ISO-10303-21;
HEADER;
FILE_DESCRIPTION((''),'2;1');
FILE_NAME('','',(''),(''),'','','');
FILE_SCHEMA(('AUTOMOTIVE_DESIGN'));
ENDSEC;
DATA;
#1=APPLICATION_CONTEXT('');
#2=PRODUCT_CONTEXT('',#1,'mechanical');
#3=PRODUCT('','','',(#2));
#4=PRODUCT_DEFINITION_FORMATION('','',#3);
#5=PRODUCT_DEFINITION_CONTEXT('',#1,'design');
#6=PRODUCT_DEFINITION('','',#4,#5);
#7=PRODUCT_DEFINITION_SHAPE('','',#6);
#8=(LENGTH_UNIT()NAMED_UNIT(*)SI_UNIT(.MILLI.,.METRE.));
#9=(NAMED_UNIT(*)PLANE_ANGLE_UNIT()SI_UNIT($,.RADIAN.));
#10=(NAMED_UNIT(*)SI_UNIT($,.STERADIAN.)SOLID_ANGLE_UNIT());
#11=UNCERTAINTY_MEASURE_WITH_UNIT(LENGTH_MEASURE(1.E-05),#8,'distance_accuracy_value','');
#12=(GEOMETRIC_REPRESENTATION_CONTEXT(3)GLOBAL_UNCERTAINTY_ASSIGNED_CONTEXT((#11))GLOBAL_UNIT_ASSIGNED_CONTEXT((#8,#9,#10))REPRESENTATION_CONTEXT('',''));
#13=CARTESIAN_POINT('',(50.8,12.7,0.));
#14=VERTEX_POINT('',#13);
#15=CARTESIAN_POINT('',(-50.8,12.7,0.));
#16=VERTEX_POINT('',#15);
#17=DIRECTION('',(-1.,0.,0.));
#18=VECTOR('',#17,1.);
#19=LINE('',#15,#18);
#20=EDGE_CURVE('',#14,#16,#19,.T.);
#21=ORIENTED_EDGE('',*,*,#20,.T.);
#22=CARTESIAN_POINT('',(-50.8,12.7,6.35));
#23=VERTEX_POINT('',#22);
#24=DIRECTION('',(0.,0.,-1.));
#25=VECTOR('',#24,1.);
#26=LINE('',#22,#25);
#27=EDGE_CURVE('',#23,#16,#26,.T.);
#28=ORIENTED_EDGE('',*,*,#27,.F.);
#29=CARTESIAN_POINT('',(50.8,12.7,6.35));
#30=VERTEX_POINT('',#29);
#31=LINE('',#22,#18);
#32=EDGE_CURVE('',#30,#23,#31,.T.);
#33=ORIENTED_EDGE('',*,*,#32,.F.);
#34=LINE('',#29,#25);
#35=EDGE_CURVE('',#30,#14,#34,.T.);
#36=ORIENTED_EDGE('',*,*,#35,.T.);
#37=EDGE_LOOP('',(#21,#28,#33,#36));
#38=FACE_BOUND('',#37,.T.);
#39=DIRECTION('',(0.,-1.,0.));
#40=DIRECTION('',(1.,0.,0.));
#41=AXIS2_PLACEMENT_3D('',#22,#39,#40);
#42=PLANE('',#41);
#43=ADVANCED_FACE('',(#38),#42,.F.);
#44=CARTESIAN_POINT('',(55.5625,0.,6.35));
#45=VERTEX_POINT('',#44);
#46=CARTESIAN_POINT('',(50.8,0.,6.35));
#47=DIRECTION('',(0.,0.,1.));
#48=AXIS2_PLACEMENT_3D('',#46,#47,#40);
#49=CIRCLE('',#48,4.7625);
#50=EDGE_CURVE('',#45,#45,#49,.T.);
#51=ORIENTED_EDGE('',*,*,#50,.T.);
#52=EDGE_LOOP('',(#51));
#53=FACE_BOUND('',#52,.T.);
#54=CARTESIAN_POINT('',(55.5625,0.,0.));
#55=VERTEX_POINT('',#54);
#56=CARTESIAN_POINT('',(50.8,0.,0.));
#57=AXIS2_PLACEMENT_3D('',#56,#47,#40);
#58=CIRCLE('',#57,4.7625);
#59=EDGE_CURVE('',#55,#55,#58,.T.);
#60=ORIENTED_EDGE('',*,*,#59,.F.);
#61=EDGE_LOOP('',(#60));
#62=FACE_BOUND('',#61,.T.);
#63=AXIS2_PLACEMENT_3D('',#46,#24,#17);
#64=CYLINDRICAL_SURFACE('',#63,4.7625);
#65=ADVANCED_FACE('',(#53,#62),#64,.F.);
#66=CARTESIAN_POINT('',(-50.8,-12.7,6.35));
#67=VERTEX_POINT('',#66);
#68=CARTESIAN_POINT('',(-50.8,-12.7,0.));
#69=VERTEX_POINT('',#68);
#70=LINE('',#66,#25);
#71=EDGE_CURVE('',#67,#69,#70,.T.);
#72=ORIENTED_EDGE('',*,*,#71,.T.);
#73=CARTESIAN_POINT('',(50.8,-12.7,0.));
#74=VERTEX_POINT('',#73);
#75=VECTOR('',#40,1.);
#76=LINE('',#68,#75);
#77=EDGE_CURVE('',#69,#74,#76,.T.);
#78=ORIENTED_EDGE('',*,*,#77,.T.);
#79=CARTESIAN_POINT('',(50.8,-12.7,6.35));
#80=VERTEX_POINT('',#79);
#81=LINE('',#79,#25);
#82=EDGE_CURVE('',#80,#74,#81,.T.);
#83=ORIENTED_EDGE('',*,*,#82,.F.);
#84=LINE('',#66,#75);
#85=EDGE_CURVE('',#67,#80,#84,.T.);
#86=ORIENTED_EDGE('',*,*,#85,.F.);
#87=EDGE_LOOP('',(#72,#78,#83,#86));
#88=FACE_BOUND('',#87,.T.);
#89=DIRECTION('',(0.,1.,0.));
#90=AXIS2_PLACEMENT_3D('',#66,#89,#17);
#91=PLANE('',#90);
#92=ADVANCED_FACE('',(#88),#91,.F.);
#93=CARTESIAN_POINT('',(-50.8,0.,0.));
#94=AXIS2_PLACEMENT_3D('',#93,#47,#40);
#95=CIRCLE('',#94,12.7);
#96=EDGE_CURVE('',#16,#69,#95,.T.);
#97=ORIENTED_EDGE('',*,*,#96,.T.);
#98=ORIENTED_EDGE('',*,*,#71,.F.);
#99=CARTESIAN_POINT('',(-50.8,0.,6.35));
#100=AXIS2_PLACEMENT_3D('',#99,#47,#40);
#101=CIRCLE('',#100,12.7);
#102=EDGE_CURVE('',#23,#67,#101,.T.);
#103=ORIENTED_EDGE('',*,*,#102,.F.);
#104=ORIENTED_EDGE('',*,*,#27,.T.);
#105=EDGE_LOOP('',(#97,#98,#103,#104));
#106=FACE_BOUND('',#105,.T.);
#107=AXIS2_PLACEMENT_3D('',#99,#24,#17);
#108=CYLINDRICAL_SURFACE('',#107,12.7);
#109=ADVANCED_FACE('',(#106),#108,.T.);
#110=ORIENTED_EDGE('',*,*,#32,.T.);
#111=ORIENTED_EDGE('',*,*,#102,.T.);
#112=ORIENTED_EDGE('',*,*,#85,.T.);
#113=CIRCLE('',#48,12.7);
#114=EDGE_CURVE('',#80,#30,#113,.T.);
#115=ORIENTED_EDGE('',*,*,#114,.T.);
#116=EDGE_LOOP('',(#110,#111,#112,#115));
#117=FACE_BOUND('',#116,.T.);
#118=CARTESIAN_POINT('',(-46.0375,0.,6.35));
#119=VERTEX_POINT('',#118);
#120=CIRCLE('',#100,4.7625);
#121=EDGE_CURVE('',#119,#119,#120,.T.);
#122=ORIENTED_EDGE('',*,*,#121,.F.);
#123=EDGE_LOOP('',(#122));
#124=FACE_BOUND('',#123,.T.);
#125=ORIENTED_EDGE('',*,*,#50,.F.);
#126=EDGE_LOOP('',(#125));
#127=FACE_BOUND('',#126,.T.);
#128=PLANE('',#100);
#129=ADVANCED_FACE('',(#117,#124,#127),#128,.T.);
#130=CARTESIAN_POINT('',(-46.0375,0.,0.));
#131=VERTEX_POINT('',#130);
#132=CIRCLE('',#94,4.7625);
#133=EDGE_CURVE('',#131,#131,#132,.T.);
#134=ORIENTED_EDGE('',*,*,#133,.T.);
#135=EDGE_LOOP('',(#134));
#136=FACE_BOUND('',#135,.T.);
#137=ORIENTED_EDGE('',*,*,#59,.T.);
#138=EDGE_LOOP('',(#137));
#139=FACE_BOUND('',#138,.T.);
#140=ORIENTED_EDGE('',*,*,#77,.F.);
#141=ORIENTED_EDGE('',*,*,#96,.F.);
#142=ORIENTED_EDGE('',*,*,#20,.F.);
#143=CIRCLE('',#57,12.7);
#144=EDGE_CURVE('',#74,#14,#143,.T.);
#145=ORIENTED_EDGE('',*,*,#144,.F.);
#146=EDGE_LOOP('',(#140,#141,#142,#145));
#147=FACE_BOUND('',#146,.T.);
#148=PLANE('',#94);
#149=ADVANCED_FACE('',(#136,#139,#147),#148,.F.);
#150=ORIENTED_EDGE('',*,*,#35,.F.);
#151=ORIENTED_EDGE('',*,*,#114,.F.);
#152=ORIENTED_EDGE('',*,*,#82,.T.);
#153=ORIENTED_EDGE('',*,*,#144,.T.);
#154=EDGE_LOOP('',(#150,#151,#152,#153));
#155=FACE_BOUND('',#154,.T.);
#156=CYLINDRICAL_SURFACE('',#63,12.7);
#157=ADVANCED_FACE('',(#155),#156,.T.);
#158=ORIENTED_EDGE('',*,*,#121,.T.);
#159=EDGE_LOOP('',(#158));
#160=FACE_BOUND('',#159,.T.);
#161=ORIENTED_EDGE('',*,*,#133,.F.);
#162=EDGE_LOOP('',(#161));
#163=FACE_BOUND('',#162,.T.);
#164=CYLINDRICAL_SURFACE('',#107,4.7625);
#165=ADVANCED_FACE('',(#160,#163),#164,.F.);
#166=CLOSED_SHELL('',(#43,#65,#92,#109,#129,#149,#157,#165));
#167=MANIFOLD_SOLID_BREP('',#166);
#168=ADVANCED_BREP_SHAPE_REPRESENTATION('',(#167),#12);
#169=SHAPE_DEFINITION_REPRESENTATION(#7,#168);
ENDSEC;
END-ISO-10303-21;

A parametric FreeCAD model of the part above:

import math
import FreeCAD as App
import Part
import Sketcher
Q = App.Units.Quantity

doc = App.newDocument("Part")
body = doc.addObject("PartDesign::Body", "Body")

# Sketch on XY plane
sketch1 = doc.addObject("Sketcher::SketchObject", "Sketch")
body.addObject(sketch1)
sketch1.AttachmentSupport = (doc.XY_Plane, [""])
sketch1.MapMode = "FlatFace"
sketch1.addGeometry([
    Part.LineSegment(App.Vector(50.8, 12.7, 0), App.Vector(-50.8, 12.7, 0)),  # 0
    Part.ArcOfCircle(Part.Circle(App.Vector(-50.8, 0, 0), App.Vector(0, 0, 1), 12.7), math.radians(90), math.radians(270)),  # 1
    Part.LineSegment(App.Vector(-50.8, -12.7, 0), App.Vector(50.8, -12.7, 0)),  # 2
    Part.ArcOfCircle(Part.Circle(App.Vector(50.8, 0, 0), App.Vector(0, 0, 1), 12.7), math.radians(-90), math.radians(90)),  # 3
    Part.Circle(App.Vector(50.8, 0, 0), App.Vector(0, 0, 1), 4.8),  # 4
    Part.Circle(App.Vector(-50.8, 0, 0), App.Vector(0, 0, 1), 4.8),  # 5
], False)
sketch1.addConstraint([
    Sketcher.Constraint("Tangent", 0, 2, 1, 1),
    Sketcher.Constraint("Tangent", 1, 2, 2, 1),
    Sketcher.Constraint("Tangent", 2, 2, 3, 1),
    Sketcher.Constraint("Tangent", 3, 2, 0, 1),
    Sketcher.Constraint("Horizontal", 0),
    Sketcher.Constraint("Horizontal", 2),
    Sketcher.Constraint("Coincident", 4, 3, 3, 3),
    Sketcher.Constraint("Coincident", 5, 3, 1, 3),
    Sketcher.Constraint("Equal", 4, 5),
    Sketcher.Constraint("Symmetric", 1, 3, 3, 3, -1, 1),
    Sketcher.Constraint("Radius", 1, Q("0.5 in")),
    Sketcher.Constraint("DistanceX", 0, 2, 0, 1, Q("4 in")),
    Sketcher.Constraint("Diameter", 4, Q("0.375 in")),
])
pad1 = doc.addObject("PartDesign::Pad", "Pad")
body.addObject(pad1)
pad1.Profile = sketch1
pad1.Length = Q("0.25 in")

doc.recompute()
